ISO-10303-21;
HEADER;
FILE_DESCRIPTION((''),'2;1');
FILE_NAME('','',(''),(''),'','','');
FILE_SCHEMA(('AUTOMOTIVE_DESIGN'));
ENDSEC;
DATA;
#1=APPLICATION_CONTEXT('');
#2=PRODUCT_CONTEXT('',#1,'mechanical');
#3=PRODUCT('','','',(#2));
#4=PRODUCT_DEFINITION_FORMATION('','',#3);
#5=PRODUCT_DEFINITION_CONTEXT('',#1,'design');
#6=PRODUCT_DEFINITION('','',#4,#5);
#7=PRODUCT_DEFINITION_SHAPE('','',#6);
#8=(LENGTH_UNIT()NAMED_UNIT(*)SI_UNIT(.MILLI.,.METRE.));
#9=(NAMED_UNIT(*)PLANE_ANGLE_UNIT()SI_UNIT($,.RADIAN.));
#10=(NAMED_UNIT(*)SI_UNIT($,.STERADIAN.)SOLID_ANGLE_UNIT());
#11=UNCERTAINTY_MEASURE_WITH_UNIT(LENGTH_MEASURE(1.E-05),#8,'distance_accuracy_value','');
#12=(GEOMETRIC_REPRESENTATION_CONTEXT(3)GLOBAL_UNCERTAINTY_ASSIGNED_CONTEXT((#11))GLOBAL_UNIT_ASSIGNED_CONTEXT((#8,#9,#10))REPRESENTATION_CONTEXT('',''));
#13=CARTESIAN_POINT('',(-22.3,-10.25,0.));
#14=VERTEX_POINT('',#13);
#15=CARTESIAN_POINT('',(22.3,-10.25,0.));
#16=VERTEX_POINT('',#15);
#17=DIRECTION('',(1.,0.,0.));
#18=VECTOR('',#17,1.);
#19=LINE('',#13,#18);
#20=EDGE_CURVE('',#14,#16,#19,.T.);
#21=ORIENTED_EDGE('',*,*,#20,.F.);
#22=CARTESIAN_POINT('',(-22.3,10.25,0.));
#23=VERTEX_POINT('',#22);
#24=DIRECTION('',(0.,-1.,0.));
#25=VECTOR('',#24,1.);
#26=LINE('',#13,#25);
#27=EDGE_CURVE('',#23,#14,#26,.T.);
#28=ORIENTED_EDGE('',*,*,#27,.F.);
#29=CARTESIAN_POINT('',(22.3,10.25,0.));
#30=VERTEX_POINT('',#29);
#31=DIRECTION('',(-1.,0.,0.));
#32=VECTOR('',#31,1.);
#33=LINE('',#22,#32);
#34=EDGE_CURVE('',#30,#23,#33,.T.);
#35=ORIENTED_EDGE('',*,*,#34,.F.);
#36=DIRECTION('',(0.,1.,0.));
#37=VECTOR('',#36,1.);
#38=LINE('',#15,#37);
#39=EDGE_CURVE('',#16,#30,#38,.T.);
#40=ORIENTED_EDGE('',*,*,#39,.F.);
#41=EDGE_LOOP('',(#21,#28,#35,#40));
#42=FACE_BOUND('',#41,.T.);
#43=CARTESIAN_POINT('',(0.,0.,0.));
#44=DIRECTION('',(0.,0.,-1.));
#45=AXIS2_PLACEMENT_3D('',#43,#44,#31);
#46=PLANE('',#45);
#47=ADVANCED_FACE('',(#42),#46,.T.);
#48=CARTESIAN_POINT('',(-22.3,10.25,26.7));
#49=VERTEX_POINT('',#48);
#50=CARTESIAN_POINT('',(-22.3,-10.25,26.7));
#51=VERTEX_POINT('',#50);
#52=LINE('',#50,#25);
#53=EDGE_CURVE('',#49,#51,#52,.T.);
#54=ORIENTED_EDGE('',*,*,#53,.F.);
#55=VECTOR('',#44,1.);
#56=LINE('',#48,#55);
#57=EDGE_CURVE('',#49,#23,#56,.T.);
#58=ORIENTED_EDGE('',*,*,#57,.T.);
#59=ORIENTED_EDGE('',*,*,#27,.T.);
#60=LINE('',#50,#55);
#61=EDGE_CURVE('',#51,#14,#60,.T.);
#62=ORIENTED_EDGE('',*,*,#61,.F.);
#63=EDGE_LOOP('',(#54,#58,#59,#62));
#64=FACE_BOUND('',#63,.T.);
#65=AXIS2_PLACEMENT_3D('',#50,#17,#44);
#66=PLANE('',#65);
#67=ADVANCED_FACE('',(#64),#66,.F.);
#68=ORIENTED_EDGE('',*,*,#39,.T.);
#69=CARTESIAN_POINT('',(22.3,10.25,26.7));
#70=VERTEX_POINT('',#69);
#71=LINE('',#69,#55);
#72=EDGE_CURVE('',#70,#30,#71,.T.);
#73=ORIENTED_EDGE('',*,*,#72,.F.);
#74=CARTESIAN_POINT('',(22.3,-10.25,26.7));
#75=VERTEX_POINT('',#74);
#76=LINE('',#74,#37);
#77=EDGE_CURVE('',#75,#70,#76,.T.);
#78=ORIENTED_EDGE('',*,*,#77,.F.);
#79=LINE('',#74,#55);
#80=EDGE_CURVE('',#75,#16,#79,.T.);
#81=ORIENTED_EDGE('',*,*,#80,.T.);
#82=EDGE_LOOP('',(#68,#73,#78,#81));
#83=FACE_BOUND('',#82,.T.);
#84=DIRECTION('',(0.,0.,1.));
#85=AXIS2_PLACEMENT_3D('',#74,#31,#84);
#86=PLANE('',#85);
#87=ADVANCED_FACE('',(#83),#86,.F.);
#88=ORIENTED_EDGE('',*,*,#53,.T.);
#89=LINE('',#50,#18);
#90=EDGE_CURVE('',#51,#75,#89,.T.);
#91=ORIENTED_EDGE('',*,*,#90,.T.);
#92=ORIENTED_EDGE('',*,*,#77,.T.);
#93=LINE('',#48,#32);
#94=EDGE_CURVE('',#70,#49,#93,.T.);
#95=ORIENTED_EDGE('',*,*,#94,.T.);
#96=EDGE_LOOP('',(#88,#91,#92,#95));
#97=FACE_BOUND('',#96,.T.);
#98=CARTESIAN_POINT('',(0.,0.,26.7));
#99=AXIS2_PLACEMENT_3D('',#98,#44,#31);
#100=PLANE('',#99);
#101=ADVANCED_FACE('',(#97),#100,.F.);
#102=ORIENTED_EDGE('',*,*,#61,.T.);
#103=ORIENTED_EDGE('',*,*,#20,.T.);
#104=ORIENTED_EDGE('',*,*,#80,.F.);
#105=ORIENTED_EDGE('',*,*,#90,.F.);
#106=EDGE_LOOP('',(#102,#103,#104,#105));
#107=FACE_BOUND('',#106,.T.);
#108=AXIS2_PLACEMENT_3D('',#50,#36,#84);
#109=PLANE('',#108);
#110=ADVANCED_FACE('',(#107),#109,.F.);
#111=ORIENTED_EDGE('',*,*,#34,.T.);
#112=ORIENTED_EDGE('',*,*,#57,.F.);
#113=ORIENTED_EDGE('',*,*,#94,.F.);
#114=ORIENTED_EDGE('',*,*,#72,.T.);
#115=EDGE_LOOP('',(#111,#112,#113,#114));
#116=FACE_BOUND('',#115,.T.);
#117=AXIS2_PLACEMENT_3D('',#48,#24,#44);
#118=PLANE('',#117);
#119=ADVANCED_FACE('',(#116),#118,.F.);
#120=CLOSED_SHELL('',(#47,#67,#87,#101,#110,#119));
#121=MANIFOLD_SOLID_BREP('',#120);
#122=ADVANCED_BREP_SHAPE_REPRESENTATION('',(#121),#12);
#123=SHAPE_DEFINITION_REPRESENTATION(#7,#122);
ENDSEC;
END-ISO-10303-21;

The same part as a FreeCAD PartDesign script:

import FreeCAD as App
import Part
import Sketcher

V = App.Vector
Q = App.Units.Quantity

doc = App.newDocument("Part")
body = doc.addObject("PartDesign::Body", "Body")

# Sketch on XY plane
sketch1 = doc.addObject("Sketcher::SketchObject", "Sketch")
body.addObject(sketch1)
sketch1.AttachmentSupport = (doc.XY_Plane, [""])
sketch1.MapMode = "FlatFace"
sketch1.addGeometry([
    Part.LineSegment(V(-22.3, 10.25, 0), V(-22.3, -10.25, 0)),
    Part.LineSegment(V(-22.3, -10.25, 0), V(22.3, -10.25, 0)),
    Part.LineSegment(V(22.3, -10.25, 0), V(22.3, 10.25, 0)),
    Part.LineSegment(V(22.3, 10.25, 0), V(-22.3, 10.25, 0)),
], False)
sketch1.addConstraint([
    Sketcher.Constraint("Coincident", 0, 2, 1, 1),
    Sketcher.Constraint("Coincident", 1, 2, 2, 1),
    Sketcher.Constraint("Coincident", 2, 2, 3, 1),
    Sketcher.Constraint("Coincident", 3, 2, 0, 1),
    Sketcher.Constraint("Vertical", 0),
    Sketcher.Constraint("Horizontal", 1),
    Sketcher.Constraint("Vertical", 2),
    Sketcher.Constraint("Horizontal", 3),
    Sketcher.Constraint("Symmetric", 0, 2, 2, 2, -1, 1),
    Sketcher.Constraint("DistanceX", 1, 1, 1, 2, Q("44.6 mm")),
    Sketcher.Constraint("DistanceY", 0, 2, 0, 1, Q("20.5 mm")),
])
pad1 = doc.addObject("PartDesign::Pad", "Pad")
body.addObject(pad1)
pad1.Profile = sketch1
pad1.Length = 26.7

doc.recompute()
